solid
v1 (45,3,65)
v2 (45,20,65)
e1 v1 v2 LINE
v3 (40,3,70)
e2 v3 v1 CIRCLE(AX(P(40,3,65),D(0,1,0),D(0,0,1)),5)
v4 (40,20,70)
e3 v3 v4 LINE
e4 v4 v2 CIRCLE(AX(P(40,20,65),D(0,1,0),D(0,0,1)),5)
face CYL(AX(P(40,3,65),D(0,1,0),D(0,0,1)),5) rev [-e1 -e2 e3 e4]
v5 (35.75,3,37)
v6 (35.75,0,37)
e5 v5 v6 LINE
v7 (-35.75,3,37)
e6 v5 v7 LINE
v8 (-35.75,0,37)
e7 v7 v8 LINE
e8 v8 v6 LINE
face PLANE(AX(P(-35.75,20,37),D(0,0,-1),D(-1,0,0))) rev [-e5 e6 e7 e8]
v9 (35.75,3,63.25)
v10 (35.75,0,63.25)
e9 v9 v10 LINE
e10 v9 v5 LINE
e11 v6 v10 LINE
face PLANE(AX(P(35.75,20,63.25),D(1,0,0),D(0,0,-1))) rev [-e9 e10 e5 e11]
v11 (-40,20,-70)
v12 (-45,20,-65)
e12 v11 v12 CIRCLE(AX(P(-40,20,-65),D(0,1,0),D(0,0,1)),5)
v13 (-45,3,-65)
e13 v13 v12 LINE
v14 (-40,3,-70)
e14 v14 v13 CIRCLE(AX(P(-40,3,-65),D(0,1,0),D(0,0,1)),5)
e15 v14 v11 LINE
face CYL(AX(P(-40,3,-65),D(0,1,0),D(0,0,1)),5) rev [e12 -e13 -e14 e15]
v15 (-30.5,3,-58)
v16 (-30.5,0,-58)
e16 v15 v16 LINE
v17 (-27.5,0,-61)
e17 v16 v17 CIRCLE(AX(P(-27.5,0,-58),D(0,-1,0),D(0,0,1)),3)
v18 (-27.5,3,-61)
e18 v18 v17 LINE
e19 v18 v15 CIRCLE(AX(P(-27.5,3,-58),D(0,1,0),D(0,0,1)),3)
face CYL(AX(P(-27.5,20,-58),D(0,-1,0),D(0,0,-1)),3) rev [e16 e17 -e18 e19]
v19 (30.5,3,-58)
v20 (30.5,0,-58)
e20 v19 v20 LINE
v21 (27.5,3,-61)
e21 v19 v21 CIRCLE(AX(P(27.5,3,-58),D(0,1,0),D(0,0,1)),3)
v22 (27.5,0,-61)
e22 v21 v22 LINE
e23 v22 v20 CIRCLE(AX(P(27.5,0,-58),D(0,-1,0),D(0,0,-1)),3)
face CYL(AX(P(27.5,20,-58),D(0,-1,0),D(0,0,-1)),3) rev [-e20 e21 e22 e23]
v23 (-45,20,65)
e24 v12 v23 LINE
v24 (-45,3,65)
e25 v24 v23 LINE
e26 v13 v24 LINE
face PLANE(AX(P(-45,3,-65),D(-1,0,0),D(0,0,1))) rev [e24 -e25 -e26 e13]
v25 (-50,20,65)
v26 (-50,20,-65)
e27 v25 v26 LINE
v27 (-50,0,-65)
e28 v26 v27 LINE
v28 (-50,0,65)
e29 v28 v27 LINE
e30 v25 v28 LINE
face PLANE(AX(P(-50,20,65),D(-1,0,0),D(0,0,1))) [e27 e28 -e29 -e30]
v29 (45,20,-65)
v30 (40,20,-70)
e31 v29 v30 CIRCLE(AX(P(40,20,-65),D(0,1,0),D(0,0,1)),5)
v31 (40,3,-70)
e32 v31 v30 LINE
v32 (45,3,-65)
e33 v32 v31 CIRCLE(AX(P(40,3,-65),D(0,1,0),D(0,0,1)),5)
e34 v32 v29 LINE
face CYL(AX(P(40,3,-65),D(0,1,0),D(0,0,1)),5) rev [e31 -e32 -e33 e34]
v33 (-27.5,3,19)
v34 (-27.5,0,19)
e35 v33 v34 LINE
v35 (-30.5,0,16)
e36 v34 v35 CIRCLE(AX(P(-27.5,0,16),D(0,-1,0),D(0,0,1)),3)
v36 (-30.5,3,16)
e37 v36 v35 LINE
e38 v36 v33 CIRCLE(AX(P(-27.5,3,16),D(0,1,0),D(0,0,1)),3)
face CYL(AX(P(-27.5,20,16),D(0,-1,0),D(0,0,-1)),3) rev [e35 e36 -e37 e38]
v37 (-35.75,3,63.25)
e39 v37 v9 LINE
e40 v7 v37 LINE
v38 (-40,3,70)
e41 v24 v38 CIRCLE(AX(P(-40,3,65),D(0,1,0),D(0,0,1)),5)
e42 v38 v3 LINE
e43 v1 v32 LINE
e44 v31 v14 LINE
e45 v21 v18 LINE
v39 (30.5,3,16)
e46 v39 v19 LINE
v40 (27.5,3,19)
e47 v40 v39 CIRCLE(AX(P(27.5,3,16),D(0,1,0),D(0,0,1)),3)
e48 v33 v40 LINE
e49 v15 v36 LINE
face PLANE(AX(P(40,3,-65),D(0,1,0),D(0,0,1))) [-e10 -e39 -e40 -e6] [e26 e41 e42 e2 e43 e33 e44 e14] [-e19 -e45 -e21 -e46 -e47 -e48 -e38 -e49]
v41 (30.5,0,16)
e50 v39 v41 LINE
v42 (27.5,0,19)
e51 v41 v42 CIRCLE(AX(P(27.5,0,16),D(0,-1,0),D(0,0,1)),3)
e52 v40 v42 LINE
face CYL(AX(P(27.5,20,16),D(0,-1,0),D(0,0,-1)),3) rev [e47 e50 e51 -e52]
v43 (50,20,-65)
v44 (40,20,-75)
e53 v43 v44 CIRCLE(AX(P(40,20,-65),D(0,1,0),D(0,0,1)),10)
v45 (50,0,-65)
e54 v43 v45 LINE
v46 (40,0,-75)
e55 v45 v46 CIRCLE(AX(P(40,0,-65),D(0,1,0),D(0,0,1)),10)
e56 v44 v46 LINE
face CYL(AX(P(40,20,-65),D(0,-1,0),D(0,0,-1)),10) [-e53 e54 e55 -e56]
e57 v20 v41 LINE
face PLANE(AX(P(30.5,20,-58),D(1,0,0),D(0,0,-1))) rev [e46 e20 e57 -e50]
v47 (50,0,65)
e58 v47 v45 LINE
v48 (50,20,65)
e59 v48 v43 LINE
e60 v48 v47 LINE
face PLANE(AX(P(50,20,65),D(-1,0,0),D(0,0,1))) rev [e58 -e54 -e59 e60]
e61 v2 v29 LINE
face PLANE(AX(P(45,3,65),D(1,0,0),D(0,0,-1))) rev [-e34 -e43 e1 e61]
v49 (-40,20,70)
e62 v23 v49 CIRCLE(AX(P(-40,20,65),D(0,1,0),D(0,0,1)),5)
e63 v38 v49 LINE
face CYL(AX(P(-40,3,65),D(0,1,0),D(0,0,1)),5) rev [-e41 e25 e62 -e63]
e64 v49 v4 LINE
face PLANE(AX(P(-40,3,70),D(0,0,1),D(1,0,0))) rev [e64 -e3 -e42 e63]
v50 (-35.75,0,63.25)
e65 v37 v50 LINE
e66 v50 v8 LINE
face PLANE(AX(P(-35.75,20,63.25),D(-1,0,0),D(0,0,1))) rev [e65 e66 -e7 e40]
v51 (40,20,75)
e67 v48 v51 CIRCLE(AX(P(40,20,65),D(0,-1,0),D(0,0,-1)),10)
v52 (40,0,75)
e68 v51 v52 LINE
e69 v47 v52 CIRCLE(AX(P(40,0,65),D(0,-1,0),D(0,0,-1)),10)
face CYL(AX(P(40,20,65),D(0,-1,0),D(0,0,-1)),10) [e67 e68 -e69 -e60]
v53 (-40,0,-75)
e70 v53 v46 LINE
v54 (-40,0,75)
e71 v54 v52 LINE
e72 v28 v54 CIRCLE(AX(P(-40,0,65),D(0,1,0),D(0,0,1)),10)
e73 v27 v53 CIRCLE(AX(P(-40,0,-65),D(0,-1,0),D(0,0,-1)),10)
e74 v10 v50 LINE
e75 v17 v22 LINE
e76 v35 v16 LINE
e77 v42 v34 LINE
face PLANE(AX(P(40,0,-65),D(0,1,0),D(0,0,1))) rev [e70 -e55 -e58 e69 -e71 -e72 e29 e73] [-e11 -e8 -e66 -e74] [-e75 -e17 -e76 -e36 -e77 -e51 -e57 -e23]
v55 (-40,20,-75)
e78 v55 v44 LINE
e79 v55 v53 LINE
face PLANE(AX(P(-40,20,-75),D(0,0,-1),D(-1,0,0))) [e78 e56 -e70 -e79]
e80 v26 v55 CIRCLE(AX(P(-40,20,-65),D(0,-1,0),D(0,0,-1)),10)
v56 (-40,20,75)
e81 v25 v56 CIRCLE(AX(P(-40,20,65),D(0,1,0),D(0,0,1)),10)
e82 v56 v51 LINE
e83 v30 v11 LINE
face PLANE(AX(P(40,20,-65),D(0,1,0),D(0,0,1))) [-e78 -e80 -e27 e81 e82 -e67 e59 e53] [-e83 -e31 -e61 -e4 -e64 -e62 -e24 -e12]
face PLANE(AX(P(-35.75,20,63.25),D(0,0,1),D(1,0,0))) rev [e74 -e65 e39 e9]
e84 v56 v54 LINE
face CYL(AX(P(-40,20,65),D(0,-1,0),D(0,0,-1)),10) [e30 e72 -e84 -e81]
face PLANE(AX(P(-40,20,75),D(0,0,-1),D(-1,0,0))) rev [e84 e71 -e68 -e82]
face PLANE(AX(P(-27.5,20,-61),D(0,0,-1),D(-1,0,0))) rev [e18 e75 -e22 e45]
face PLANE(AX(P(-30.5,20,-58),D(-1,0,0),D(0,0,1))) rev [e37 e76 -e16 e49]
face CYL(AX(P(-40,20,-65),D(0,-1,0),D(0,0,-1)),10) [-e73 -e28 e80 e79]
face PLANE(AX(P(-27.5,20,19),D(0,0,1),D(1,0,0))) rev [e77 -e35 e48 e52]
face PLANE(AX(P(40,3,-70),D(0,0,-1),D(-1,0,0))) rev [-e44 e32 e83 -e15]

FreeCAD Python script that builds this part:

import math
import FreeCAD as App
import Part
import Sketcher

V = App.Vector

doc = App.newDocument("Part")
body = doc.addObject("PartDesign::Body", "Body")

# Sketch on XZ plane
sketch1 = body.newObject("Sketcher::SketchObject", "Sketch")
sketch1.AttachmentSupport = (doc.getObject("XZ_Plane"), [""])
sketch1.MapMode = "FlatFace"
sketch1.addGeometry(Part.LineSegment(V(-40, 75, 0), V(40, 75, 0)), False)
sketch1.addGeometry(Part.ArcOfCircle(Part.Circle(V(40, 65, 0), V(0, 0, 1), 10), math.radians(0), math.radians(90)), False)
sketch1.addGeometry(Part.LineSegment(V(50, 65, 0), V(50, -65, 0)), False)
sketch1.addGeometry(Part.ArcOfCircle(Part.Circle(V(40, -65, 0), V(0, 0, 1), 10), math.radians(-90), math.radians(0)), False)
sketch1.addGeometry(Part.LineSegment(V(40, -75, 0), V(-40, -75, 0)), False)
sketch1.addGeometry(Part.ArcOfCircle(Part.Circle(V(-40, -65, 0), V(0, 0, 1), 10), math.radians(180), math.radians(270)), False)
sketch1.addGeometry(Part.LineSegment(V(-50, -65, 0), V(-50, 65, 0)), False)
sketch1.addGeometry(Part.ArcOfCircle(Part.Circle(V(-40, 65, 0), V(0, 0, 1), 10), math.radians(90), math.radians(180)), False)
sketch1.addConstraint(Sketcher.Constraint("Tangent", 0, 2, 1, 2))
sketch1.addConstraint(Sketcher.Constraint("Tangent", 1, 1, 2, 1))
sketch1.addConstraint(Sketcher.Constraint("Tangent", 2, 2, 3, 2))
sketch1.addConstraint(Sketcher.Constraint("Tangent", 3, 1, 4, 1))
sketch1.addConstraint(Sketcher.Constraint("Tangent", 4, 2, 5, 2))
sketch1.addConstraint(Sketcher.Constraint("Tangent", 5, 1, 6, 1))
sketch1.addConstraint(Sketcher.Constraint("Tangent", 6, 2, 7, 2))
sketch1.addConstraint(Sketcher.Constraint("Tangent", 7, 1, 0, 1))
sketch1.addConstraint(Sketcher.Constraint("Horizontal", 0))
sketch1.addConstraint(Sketcher.Constraint("Vertical", 2))
sketch1.addConstraint(Sketcher.Constraint("Horizontal", 4))
sketch1.addConstraint(Sketcher.Constraint("Vertical", 6))
sketch1.addConstraint(Sketcher.Constraint("Equal", 1, 3))
sketch1.addConstraint(Sketcher.Constraint("Equal", 3, 5))
sketch1.addConstraint(Sketcher.Constraint("Equal", 5, 7))
sketch1.addConstraint(Sketcher.Constraint("Symmetric", 1, 3, 5, 3, -1, 1))
sketch1.addConstraint(Sketcher.Constraint("Radius", 1, 10.0))
sketch1.addConstraint(Sketcher.Constraint("DistanceX", 0, 1, 0, 2, 80.0))
sketch1.addConstraint(Sketcher.Constraint("DistanceY", 2, 2, 2, 1, 130.0))
pad1 = body.newObject("PartDesign::Pad", "Pad")
pad1.Profile = sketch1
pad1.Length = 20
pad1.Reversed = True

# Sketch on XZ plane
sketch2 = body.newObject("Sketcher::SketchObject", "Sketch001")
sketch2.AttachmentSupport = (doc.getObject("XZ_Plane"), [""])
sketch2.MapMode = "FlatFace"
sketch2.AttachmentOffset = App.Placement(V(0, 0, -20), App.Rotation())
sketch2.addGeometry(Part.LineSegment(V(40, -70, 0), V(-40, -70, 0)), False)
sketch2.addGeometry(Part.ArcOfCircle(Part.Circle(V(-40, -65, 0), V(0, 0, 1), 5), math.radians(180), math.radians(270)), False)
sketch2.addGeometry(Part.LineSegment(V(-45, -65, 0), V(-45, 65, 0)), False)
sketch2.addGeometry(Part.ArcOfCircle(Part.Circle(V(-40, 65, 0), V(0, 0, 1), 5), math.radians(90), math.radians(180)), False)
sketch2.addGeometry(Part.LineSegment(V(-40, 70, 0), V(40, 70, 0)), False)
sketch2.addGeometry(Part.ArcOfCircle(Part.Circle(V(40, 65, 0), V(0, 0, 1), 5), math.radians(0), math.radians(90)), False)
sketch2.addGeometry(Part.LineSegment(V(45, 65, 0), V(45, -65, 0)), False)
sketch2.addGeometry(Part.ArcOfCircle(Part.Circle(V(40, -65, 0), V(0, 0, 1), 5), math.radians(-90), math.radians(0)), False)
sketch2.addConstraint(Sketcher.Constraint("Tangent", 0, 2, 1, 2))
sketch2.addConstraint(Sketcher.Constraint("Tangent", 1, 1, 2, 1))
sketch2.addConstraint(Sketcher.Constraint("Tangent", 2, 2, 3, 2))
sketch2.addConstraint(Sketcher.Constraint("Tangent", 3, 1, 4, 1))
sketch2.addConstraint(Sketcher.Constraint("Tangent", 4, 2, 5, 2))
sketch2.addConstraint(Sketcher.Constraint("Tangent", 5, 1, 6, 1))
sketch2.addConstraint(Sketcher.Constraint("Tangent", 6, 2, 7, 2))
sketch2.addConstraint(Sketcher.Constraint("Tangent", 7, 1, 0, 1))
sketch2.addConstraint(Sketcher.Constraint("Horizontal", 0))
sketch2.addConstraint(Sketcher.Constraint("Vertical", 2))
sketch2.addConstraint(Sketcher.Constraint("Horizontal", 4))
sketch2.addConstraint(Sketcher.Constraint("Vertical", 6))
sketch2.addConstraint(Sketcher.Constraint("Equal", 1, 3))
sketch2.addConstraint(Sketcher.Constraint("Equal", 3, 5))
sketch2.addConstraint(Sketcher.Constraint("Equal", 5, 7))
sketch2.addConstraint(Sketcher.Constraint("Symmetric", 1, 3, 5, 3, -1, 1))
sketch2.addConstraint(Sketcher.Constraint("Radius", 1, 5.0))
sketch2.addConstraint(Sketcher.Constraint("DistanceX", 0, 2, 0, 1, 80.0))
sketch2.addConstraint(Sketcher.Constraint("DistanceY", 2, 1, 2, 2, 130.0))
pocket1 = body.newObject("PartDesign::Pocket", "Pocket")
pocket1.Profile = sketch2
pocket1.Length = 17
pocket1.Reversed = True

# Sketch on XZ plane
sketch3 = body.newObject("Sketcher::SketchObject", "Sketch002")
sketch3.AttachmentSupport = (doc.getObject("XZ_Plane"), [""])
sketch3.MapMode = "FlatFace"
sketch3.addGeometry(Part.LineSegment(V(-27.5, -61, 0), V(27.5, -61, 0)), False)
sketch3.addGeometry(Part.ArcOfCircle(Part.Circle(V(27.5, -58, 0), V(0, 0, 1), 3), math.radians(-90), math.radians(0)), False)
sketch3.addGeometry(Part.LineSegment(V(30.5, -58, 0), V(30.5, 16, 0)), False)
sketch3.addGeometry(Part.ArcOfCircle(Part.Circle(V(27.5, 16, 0), V(0, 0, 1), 3), math.radians(0), math.radians(90)), False)
sketch3.addGeometry(Part.LineSegment(V(27.5, 19, 0), V(-27.5, 19, 0)), False)
sketch3.addGeometry(Part.ArcOfCircle(Part.Circle(V(-27.5, 16, 0), V(0, 0, 1), 3), math.radians(90), math.radians(180)), False)
sketch3.addGeometry(Part.LineSegment(V(-30.5, 16, 0), V(-30.5, -58, 0)), False)
sketch3.addGeometry(Part.ArcOfCircle(Part.Circle(V(-27.5, -58, 0), V(0, 0, 1), 3), math.radians(180), math.radians(270)), False)
sketch3.addGeometry(Part.LineSegment(V(-35.75, 63.25, 0), V(-35.75, 37, 0)), False)
sketch3.addGeometry(Part.LineSegment(V(-35.75, 37, 0), V(35.75, 37, 0)), False)
sketch3.addGeometry(Part.LineSegment(V(35.75, 37, 0), V(35.75, 63.25, 0)), False)
sketch3.addGeometry(Part.LineSegment(V(35.75, 63.25, 0), V(-35.75, 63.25, 0)), False)
sketch3.addConstraint(Sketcher.Constraint("Tangent", 0, 2, 1, 1))
sketch3.addConstraint(Sketcher.Constraint("Tangent", 1, 2, 2, 1))
sketch3.addConstraint(Sketcher.Constraint("Tangent", 2, 2, 3, 1))
sketch3.addConstraint(Sketcher.Constraint("Tangent", 3, 2, 4, 1))
sketch3.addConstraint(Sketcher.Constraint("Tangent", 4, 2, 5, 1))
sketch3.addConstraint(Sketcher.Constraint("Tangent", 5, 2, 6, 1))
sketch3.addConstraint(Sketcher.Constraint("Tangent", 6, 2, 7, 1))
sketch3.addConstraint(Sketcher.Constraint("Tangent", 7, 2, 0, 1))
sketch3.addConstraint(Sketcher.Constraint("Coincident", 8, 2, 9, 1))
sketch3.addConstraint(Sketcher.Constraint("Coincident", 9, 2, 10, 1))
sketch3.addConstraint(Sketcher.Constraint("Coincident", 10, 2, 11, 1))
sketch3.addConstraint(Sketcher.Constraint("Coincident", 11, 2, 8, 1))
sketch3.addConstraint(Sketcher.Constraint("Horizontal", 0))
sketch3.addConstraint(Sketcher.Constraint("Vertical", 2))
sketch3.addConstraint(Sketcher.Constraint("Horizontal", 4))
sketch3.addConstraint(Sketcher.Constraint("Vertical", 6))
sketch3.addConstraint(Sketcher.Constraint("Vertical", 8))
sketch3.addConstraint(Sketcher.Constraint("Horizontal", 9))
sketch3.addConstraint(Sketcher.Constraint("Vertical", 10))
sketch3.addConstraint(Sketcher.Constraint("Horizontal", 11))
sketch3.addConstraint(Sketcher.Constraint("Equal", 1, 3))
sketch3.addConstraint(Sketcher.Constraint("Equal", 3, 5))
sketch3.addConstraint(Sketcher.Constraint("Equal", 5, 7))
sketch3.addConstraint(Sketcher.Constraint("Radius", 1, 3.0))
sketch3.addConstraint(Sketcher.Constraint("DistanceX", 0, 1, 0, 2, 55.0))
sketch3.addConstraint(Sketcher.Constraint("DistanceY", 2, 1, 2, 2, 74.0))
sketch3.addConstraint(Sketcher.Constraint("DistanceX", 9, 1, 9, 2, 71.5))
sketch3.addConstraint(Sketcher.Constraint("DistanceY", 1, 3, -1, 1, 58.0))
sketch3.addConstraint(Sketcher.Constraint("DistanceY", -1, 1, 8, 2, 37.0))
sketch3.addConstraint(Sketcher.Constraint("DistanceY", 8, 2, 8, 1, 26.25))
sketch3.addConstraint(Sketcher.Constraint("DistanceX", -1, 1, 1, 3, 27.5))
sketch3.addConstraint(Sketcher.Constraint("DistanceX", 8, 2, -1, 1, 35.75))
pocket2 = body.newObject("PartDesign::Pocket", "Pocket001")
pocket2.Profile = sketch3
pocket2.Type = "ThroughAll"

doc.recompute()
